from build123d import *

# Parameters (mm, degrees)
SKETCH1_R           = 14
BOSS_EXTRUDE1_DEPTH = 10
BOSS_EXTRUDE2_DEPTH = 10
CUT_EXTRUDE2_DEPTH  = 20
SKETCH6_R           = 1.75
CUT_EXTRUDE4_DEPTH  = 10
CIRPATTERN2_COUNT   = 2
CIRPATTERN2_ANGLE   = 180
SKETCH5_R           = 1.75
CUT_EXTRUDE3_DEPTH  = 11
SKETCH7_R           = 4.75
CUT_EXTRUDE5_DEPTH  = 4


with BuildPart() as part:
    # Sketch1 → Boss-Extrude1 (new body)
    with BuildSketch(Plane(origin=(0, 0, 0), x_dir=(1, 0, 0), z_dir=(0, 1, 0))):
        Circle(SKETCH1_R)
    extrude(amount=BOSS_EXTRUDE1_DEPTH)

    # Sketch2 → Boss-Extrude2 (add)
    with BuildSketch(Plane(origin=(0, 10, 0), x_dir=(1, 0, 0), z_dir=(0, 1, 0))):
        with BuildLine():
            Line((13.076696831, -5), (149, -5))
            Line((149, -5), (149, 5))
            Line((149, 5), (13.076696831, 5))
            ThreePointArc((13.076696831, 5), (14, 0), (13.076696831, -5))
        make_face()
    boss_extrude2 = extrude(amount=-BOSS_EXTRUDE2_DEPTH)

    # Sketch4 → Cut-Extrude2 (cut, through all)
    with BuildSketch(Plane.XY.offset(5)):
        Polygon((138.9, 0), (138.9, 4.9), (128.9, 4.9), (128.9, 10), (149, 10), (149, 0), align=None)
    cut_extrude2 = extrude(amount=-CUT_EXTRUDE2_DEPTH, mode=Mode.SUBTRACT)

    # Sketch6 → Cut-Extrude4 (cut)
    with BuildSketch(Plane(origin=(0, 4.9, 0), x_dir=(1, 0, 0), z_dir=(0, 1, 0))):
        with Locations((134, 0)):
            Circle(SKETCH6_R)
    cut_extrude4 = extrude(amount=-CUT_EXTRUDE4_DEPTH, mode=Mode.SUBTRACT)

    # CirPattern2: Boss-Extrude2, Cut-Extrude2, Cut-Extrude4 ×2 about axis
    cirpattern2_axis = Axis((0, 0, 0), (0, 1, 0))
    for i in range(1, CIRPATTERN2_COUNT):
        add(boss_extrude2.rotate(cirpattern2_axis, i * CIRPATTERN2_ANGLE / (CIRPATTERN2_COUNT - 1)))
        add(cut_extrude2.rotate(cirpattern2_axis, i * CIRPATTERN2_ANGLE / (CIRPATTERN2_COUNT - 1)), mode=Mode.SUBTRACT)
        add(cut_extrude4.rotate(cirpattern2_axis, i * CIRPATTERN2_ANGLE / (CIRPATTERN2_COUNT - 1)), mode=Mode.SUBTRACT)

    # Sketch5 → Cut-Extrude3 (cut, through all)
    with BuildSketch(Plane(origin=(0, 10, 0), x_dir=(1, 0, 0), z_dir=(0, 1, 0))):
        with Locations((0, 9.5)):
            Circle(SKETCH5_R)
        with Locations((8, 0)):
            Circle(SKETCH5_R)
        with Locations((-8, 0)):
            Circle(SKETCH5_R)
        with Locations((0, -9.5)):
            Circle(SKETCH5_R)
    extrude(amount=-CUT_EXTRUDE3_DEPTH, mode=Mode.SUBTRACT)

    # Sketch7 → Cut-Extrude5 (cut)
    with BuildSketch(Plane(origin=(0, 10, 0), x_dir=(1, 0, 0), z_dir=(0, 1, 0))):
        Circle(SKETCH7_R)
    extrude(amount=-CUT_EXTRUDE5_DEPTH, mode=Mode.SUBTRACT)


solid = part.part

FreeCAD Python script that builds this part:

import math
import FreeCAD as App
import Part
import Sketcher

V = App.Vector
Q = App.Units.Quantity

doc = App.newDocument("Part")
body = doc.addObject("PartDesign::Body", "Body")

sketch1 = body.newObject("Sketcher::SketchObject", "Sketch")
sketch1.AttachmentSupport = (doc.getObject("XZ_Plane"), [""])
sketch1.MapMode = "FlatFace"
sketch1.addGeometry(Part.Circle(V(0, 0, 0), V(0, 0, 1), 14), False)
sketch1.addConstraint(Sketcher.Constraint("Coincident", 0, 3, -1, 1))
sketch1.addConstraint(Sketcher.Constraint("Diameter", 0, Q("28 mm")))
pad1 = body.newObject("PartDesign::Pad", "Pad")
pad1.Profile = sketch1
pad1.Length = 10
pad1.Reversed = True

sketch2 = body.newObject("Sketcher::SketchObject", "Sketch001")
sketch2.AttachmentSupport = (doc.getObject("XZ_Plane"), [""])
sketch2.MapMode = "FlatFace"
sketch2.AttachmentOffset = App.Placement(V(0, 0, -10), App.Rotation())
sketch2.addGeometry(Part.LineSegment(V(13, 5, 0), V(149, 5, 0)), False)
sketch2.addGeometry(Part.LineSegment(V(149, 5, 0), V(149, -5, 0)), False)
sketch2.addGeometry(Part.LineSegment(V(149, -5, 0), V(13, -5, 0)), False)
sketch2.addGeometry(Part.ArcOfCircle(Part.Circle(V(0, 0, 0), V(0, 0, 1), 14), math.radians(-21), math.radians(21)), False)
sketch2.addConstraint(Sketcher.Constraint("Coincident", 0, 2, 1, 1))
sketch2.addConstraint(Sketcher.Constraint("Coincident", 1, 2, 2, 1))
sketch2.addConstraint(Sketcher.Constraint("Coincident", 2, 2, 3, 1))
sketch2.addConstraint(Sketcher.Constraint("Coincident", 3, 2, 0, 1))
sketch2.addConstraint(Sketcher.Constraint("Horizontal", 0))
sketch2.addConstraint(Sketcher.Constraint("Vertical", 1))
sketch2.addConstraint(Sketcher.Constraint("Horizontal", 2))
sketch2.addConstraint(Sketcher.Constraint("Coincident", 3, 3, -1, 1))
sketch2.addConstraint(Sketcher.Constraint("Vertical", 2, 2, 3, 2))
sketch2.addConstraint(Sketcher.Constraint("Radius", 3, Q("14 mm")))
sketch2.addConstraint(Sketcher.Constraint("DistanceY", 1, 2, 1, 1, Q("10 mm")))
sketch2.addConstraint(Sketcher.Constraint("DistanceX", -1, 1, 0, 2, Q("149 mm")))
pad2 = body.newObject("PartDesign::Pad", "Pad001")
pad2.Profile = sketch2
pad2.Length = 10

sketch3 = body.newObject("Sketcher::SketchObject", "Sketch002")
sketch3.AttachmentSupport = (doc.getObject("XY_Plane"), [""])
sketch3.MapMode = "FlatFace"
sketch3.AttachmentOffset = App.Placement(V(0, 0, 5), App.Rotation())
sketch3.addGeometry(Part.LineSegment(V(138.9, 4.9, 0), V(138.9, 0, 0)), False)
sketch3.addGeometry(Part.LineSegment(V(138.9, 0, 0), V(149, 0, 0)), False)
sketch3.addGeometry(Part.LineSegment(V(149, 0, 0), V(149, 10, 0)), False)
sketch3.addGeometry(Part.LineSegment(V(149, 10, 0), V(128.9, 10, 0)), False)
sketch3.addGeometry(Part.LineSegment(V(128.9, 10, 0), V(128.9, 4.9, 0)), False)
sketch3.addGeometry(Part.LineSegment(V(128.9, 4.9, 0), V(138.9, 4.9, 0)), False)
sketch3.addConstraint(Sketcher.Constraint("Coincident", 0, 2, 1, 1))
sketch3.addConstraint(Sketcher.Constraint("Coincident", 1, 2, 2, 1))
sketch3.addConstraint(Sketcher.Constraint("Coincident", 2, 2, 3, 1))
sketch3.addConstraint(Sketcher.Constraint("Coincident", 3, 2, 4, 1))
sketch3.addConstraint(Sketcher.Constraint("Coincident", 4, 2, 5, 1))
sketch3.addConstraint(Sketcher.Constraint("Coincident", 5, 2, 0, 1))
sketch3.addConstraint(Sketcher.Constraint("Vertical", 0))
sketch3.addConstraint(Sketcher.Constraint("Horizontal", 1))
sketch3.addConstraint(Sketcher.Constraint("Vertical", 2))
sketch3.addConstraint(Sketcher.Constraint("Horizontal", 3))
sketch3.addConstraint(Sketcher.Constraint("Vertical", 4))
sketch3.addConstraint(Sketcher.Constraint("Horizontal", 5))
sketch3.addConstraint(Sketcher.Constraint("PointOnObject", 0, 2, -1))
sketch3.addConstraint(Sketcher.Constraint("Equal", 5, 2))
sketch3.addConstraint(Sketcher.Constraint("DistanceX", 5, 1, 5, 2, Q("10 mm")))
sketch3.addConstraint(Sketcher.Constraint("DistanceX", 1, 1, 1, 2, Q("10.1 mm")))
sketch3.addConstraint(Sketcher.Constraint("DistanceY", 0, 2, 0, 1, Q("4.9 mm")))
sketch3.addConstraint(Sketcher.Constraint("DistanceX", -1, 1, 1, 2, Q("149 mm")))
pocket1 = body.newObject("PartDesign::Pocket", "Pocket")
pocket1.Profile = sketch3
pocket1.Type = "ThroughAll"

sketch4 = body.newObject("Sketcher::SketchObject", "Sketch003")
sketch4.AttachmentSupport = (doc.getObject("XZ_Plane"), [""])
sketch4.MapMode = "FlatFace"
sketch4.AttachmentOffset = App.Placement(V(0, 0, -4.9), App.Rotation())
sketch4.addGeometry(Part.Circle(V(134, 0, 0), V(0, 0, 1), 1.8), False)
sketch4.addConstraint(Sketcher.Constraint("PointOnObject", 0, 3, -1))
sketch4.addConstraint(Sketcher.Constraint("Diameter", 0, Q("3.5 mm")))
sketch4.addConstraint(Sketcher.Constraint("DistanceX", -1, 1, 0, 3, Q("134 mm")))
pocket2 = body.newObject("PartDesign::Pocket", "Pocket001")
pocket2.Profile = sketch4
pocket2.Length = 10
pocket2.Reversed = True
doc.recompute()

polarpattern = body.newObject("PartDesign::PolarPattern", "PolarPattern")
polarpattern.Originals = [pad2, pocket1, pocket2]
polarpattern.Axis = (doc.getObject("Y_Axis"), [""])
polarpattern.Angle = 360
polarpattern.Occurrences = 2
body.Tip = polarpattern

sketch5 = body.newObject("Sketcher::SketchObject", "Sketch004")
sketch5.AttachmentSupport = (doc.getObject("XZ_Plane"), [""])
sketch5.MapMode = "FlatFace"
sketch5.AttachmentOffset = App.Placement(V(0, 0, -10), App.Rotation())
sketch5.addGeometry(Part.Circle(V(0, -9.5, 0), V(0, 0, 1), 1.8), False)
sketch5.addGeometry(Part.Circle(V(8, 0, 0), V(0, 0, 1), 1.8), False)
sketch5.addGeometry(Part.Circle(V(-8, 0, 0), V(0, 0, 1), 1.8), False)
sketch5.addGeometry(Part.Circle(V(0, 9.5, 0), V(0, 0, 1), 1.8), False)
sketch5.addConstraint(Sketcher.Constraint("Equal", 0, 1))
sketch5.addConstraint(Sketcher.Constraint("Equal", 1, 2))
sketch5.addConstraint(Sketcher.Constraint("Equal", 2, 3))
sketch5.addConstraint(Sketcher.Constraint("Symmetric", 1, 3, 2, 3, -1, 1))
sketch5.addConstraint(Sketcher.Constraint("Symmetric", 0, 3, 3, 3, -1, 1))
sketch5.addConstraint(Sketcher.Constraint("PointOnObject", 0, 3, -2))
sketch5.addConstraint(Sketcher.Constraint("PointOnObject", 1, 3, -1))
sketch5.addConstraint(Sketcher.Constraint("Diameter", 0, Q("3.5 mm")))
sketch5.addConstraint(Sketcher.Constraint("DistanceX", -1, 1, 1, 3, Q("8 mm")))
sketch5.addConstraint(Sketcher.Constraint("DistanceY", 0, 3, 3, 3, Q("19 mm")))
pocket3 = body.newObject("PartDesign::Pocket", "Pocket002")
pocket3.Profile = sketch5
pocket3.Type = "ThroughAll"
pocket3.Reversed = True

sketch6 = body.newObject("Sketcher::SketchObject", "Sketch005")
sketch6.AttachmentSupport = (doc.getObject("XZ_Plane"), [""])
sketch6.MapMode = "FlatFace"
sketch6.AttachmentOffset = App.Placement(V(0, 0, -10), App.Rotation())
sketch6.addGeometry(Part.Circle(V(0, 0, 0), V(0, 0, 1), 4.8), False)
sketch6.addConstraint(Sketcher.Constraint("Coincident", 0, 3, -1, 1))
sketch6.addConstraint(Sketcher.Constraint("Diameter", 0, Q("9.5 mm")))
pocket4 = body.newObject("PartDesign::Pocket", "Pocket003")
pocket4.Profile = sketch6
pocket4.Length = 4
pocket4.Reversed = True

doc.recompute()
